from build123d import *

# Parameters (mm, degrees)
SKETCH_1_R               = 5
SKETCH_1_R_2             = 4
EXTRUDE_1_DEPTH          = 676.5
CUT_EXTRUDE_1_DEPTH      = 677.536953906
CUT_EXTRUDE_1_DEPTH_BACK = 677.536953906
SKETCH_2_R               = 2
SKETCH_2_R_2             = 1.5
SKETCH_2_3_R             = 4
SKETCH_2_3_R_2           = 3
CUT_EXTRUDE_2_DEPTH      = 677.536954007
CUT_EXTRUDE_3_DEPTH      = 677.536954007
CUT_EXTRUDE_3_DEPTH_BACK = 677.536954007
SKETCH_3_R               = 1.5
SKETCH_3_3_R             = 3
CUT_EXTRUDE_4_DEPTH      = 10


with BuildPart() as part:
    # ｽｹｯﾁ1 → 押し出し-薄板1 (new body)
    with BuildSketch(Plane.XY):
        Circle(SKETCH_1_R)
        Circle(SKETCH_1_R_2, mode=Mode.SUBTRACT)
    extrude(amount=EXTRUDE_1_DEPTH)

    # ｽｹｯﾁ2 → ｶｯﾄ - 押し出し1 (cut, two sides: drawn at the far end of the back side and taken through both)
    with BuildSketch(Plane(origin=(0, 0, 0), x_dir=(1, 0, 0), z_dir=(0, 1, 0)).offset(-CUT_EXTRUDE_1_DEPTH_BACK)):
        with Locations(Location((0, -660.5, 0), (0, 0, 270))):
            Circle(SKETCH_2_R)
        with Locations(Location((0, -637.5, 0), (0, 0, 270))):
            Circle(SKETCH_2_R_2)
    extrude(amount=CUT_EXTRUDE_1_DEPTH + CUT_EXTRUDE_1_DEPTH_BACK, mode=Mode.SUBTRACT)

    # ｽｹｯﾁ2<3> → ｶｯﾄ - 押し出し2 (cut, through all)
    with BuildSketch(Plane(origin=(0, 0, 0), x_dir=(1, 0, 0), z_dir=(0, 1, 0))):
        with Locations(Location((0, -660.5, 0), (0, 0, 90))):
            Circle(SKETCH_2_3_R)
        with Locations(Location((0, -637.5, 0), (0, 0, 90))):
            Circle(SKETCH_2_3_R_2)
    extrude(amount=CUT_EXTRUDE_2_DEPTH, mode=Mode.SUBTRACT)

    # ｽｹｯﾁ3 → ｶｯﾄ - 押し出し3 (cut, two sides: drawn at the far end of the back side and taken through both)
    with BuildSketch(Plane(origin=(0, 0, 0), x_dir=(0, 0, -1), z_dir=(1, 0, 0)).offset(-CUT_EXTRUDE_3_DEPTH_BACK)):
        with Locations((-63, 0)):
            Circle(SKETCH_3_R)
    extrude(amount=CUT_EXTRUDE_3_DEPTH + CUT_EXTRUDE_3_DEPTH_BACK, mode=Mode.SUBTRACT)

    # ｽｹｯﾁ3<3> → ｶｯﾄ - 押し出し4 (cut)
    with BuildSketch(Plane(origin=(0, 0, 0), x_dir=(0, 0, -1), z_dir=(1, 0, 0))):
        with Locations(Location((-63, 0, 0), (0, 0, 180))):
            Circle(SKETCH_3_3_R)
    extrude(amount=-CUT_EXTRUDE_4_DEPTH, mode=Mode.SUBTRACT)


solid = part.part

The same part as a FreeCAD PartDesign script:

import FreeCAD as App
import Part
import Sketcher

V = App.Vector

doc = App.newDocument("Part")
body = doc.addObject("PartDesign::Body", "Body")

# Sketch on XY plane
sketch1 = doc.addObject("Sketcher::SketchObject", "Sketch")
body.addObject(sketch1)
sketch1.AttachmentSupport = (doc.XY_Plane, [""])
sketch1.MapMode = "FlatFace"
sketch1.addGeometry(Part.Circle(V(0, 0, 0), V(0, 0, 1), 5), False)
sketch1.addGeometry(Part.Circle(V(0, 0, 0), V(0, 0, 1), 4), False)
sketch1.addConstraint(Sketcher.Constraint("Coincident", 0, 3, -1, 1))
sketch1.addConstraint(Sketcher.Constraint("Coincident", 1, 3, -1, 1))
sketch1.addConstraint(Sketcher.Constraint("Diameter", 0, 10.0))
sketch1.addConstraint(Sketcher.Constraint("Diameter", 1, 8.0))
pad1 = doc.addObject("PartDesign::Pad", "Pad")
body.addObject(pad1)
pad1.Profile = sketch1
pad1.Length = 676.5

# Sketch on XZ plane
sketch2 = doc.addObject("Sketcher::SketchObject", "Sketch001")
body.addObject(sketch2)
sketch2.AttachmentSupport = (doc.XZ_Plane, [""])
sketch2.MapMode = "FlatFace"
sketch2.addGeometry(Part.Circle(V(0, 660.5, 0), V(0, 0, 1), 2), False)
sketch2.addGeometry(Part.Circle(V(0, 637.5, 0), V(0, 0, 1), 1.5), False)
sketch2.addConstraint(Sketcher.Constraint("PointOnObject", 0, 3, -2))
sketch2.addConstraint(Sketcher.Constraint("PointOnObject", 1, 3, -2))
sketch2.addConstraint(Sketcher.Constraint("Diameter", 0, 4.0))
sketch2.addConstraint(Sketcher.Constraint("Diameter", 1, 3.0))
sketch2.addConstraint(Sketcher.Constraint("DistanceY", 1, 3, 0, 3, 23.0))
sketch2.addConstraint(Sketcher.Constraint("DistanceY", -1, 1, 0, 3, 660.5))
pocket1 = doc.addObject("PartDesign::Pocket", "Pocket")
body.addObject(pocket1)
pocket1.Profile = sketch2
pocket1.Type = "ThroughAll"
pocket1.Midplane = True

# Sketch on XZ plane
sketch3 = doc.addObject("Sketcher::SketchObject", "Sketch002")
body.addObject(sketch3)
sketch3.AttachmentSupport = (doc.XZ_Plane, [""])
sketch3.MapMode = "FlatFace"
sketch3.addGeometry(Part.Circle(V(0, 660.5, 0), V(0, 0, 1), 4), False)
sketch3.addGeometry(Part.Circle(V(0, 637.5, 0), V(0, 0, 1), 3), False)
sketch3.addConstraint(Sketcher.Constraint("PointOnObject", 0, 3, -2))
sketch3.addConstraint(Sketcher.Constraint("PointOnObject", 1, 3, -2))
sketch3.addConstraint(Sketcher.Constraint("Diameter", 0, 8.0))
sketch3.addConstraint(Sketcher.Constraint("Diameter", 1, 6.0))
sketch3.addConstraint(Sketcher.Constraint("DistanceY", 1, 3, 0, 3, 23.0))
sketch3.addConstraint(Sketcher.Constraint("DistanceY", -1, 1, 0, 3, 660.5))
pocket2 = doc.addObject("PartDesign::Pocket", "Pocket001")
body.addObject(pocket2)
pocket2.Profile = sketch3
pocket2.Type = "ThroughAll"

# Sketch on YZ plane
sketch4 = doc.addObject("Sketcher::SketchObject", "Sketch003")
body.addObject(sketch4)
sketch4.AttachmentSupport = (doc.YZ_Plane, [""])
sketch4.MapMode = "FlatFace"
sketch4.addGeometry(Part.Circle(V(0, 63, 0), V(0, 0, 1), 1.5), False)
sketch4.addConstraint(Sketcher.Constraint("PointOnObject", 0, 3, -2))
sketch4.addConstraint(Sketcher.Constraint("Diameter", 0, 3.0))
sketch4.addConstraint(Sketcher.Constraint("DistanceY", -1, 1, 0, 3, 63.0))
pocket3 = doc.addObject("PartDesign::Pocket", "Pocket002")
body.addObject(pocket3)
pocket3.Profile = sketch4
pocket3.Type = "ThroughAll"
pocket3.Midplane = True

# Sketch on YZ plane
sketch5 = doc.addObject("Sketcher::SketchObject", "Sketch004")
body.addObject(sketch5)
sketch5.AttachmentSupport = (doc.YZ_Plane, [""])
sketch5.MapMode = "FlatFace"
sketch5.addGeometry(Part.Circle(V(0, 63, 0), V(0, 0, 1), 3), False)
sketch5.addConstraint(Sketcher.Constraint("PointOnObject", 0, 3, -2))
sketch5.addConstraint(Sketcher.Constraint("Diameter", 0, 6.0))
sketch5.addConstraint(Sketcher.Constraint("DistanceY", -1, 1, 0, 3, 63.0))
pocket4 = doc.addObject("PartDesign::Pocket", "Pocket003")
body.addObject(pocket4)
pocket4.Profile = sketch5
pocket4.Length = 10

doc.recompute()
